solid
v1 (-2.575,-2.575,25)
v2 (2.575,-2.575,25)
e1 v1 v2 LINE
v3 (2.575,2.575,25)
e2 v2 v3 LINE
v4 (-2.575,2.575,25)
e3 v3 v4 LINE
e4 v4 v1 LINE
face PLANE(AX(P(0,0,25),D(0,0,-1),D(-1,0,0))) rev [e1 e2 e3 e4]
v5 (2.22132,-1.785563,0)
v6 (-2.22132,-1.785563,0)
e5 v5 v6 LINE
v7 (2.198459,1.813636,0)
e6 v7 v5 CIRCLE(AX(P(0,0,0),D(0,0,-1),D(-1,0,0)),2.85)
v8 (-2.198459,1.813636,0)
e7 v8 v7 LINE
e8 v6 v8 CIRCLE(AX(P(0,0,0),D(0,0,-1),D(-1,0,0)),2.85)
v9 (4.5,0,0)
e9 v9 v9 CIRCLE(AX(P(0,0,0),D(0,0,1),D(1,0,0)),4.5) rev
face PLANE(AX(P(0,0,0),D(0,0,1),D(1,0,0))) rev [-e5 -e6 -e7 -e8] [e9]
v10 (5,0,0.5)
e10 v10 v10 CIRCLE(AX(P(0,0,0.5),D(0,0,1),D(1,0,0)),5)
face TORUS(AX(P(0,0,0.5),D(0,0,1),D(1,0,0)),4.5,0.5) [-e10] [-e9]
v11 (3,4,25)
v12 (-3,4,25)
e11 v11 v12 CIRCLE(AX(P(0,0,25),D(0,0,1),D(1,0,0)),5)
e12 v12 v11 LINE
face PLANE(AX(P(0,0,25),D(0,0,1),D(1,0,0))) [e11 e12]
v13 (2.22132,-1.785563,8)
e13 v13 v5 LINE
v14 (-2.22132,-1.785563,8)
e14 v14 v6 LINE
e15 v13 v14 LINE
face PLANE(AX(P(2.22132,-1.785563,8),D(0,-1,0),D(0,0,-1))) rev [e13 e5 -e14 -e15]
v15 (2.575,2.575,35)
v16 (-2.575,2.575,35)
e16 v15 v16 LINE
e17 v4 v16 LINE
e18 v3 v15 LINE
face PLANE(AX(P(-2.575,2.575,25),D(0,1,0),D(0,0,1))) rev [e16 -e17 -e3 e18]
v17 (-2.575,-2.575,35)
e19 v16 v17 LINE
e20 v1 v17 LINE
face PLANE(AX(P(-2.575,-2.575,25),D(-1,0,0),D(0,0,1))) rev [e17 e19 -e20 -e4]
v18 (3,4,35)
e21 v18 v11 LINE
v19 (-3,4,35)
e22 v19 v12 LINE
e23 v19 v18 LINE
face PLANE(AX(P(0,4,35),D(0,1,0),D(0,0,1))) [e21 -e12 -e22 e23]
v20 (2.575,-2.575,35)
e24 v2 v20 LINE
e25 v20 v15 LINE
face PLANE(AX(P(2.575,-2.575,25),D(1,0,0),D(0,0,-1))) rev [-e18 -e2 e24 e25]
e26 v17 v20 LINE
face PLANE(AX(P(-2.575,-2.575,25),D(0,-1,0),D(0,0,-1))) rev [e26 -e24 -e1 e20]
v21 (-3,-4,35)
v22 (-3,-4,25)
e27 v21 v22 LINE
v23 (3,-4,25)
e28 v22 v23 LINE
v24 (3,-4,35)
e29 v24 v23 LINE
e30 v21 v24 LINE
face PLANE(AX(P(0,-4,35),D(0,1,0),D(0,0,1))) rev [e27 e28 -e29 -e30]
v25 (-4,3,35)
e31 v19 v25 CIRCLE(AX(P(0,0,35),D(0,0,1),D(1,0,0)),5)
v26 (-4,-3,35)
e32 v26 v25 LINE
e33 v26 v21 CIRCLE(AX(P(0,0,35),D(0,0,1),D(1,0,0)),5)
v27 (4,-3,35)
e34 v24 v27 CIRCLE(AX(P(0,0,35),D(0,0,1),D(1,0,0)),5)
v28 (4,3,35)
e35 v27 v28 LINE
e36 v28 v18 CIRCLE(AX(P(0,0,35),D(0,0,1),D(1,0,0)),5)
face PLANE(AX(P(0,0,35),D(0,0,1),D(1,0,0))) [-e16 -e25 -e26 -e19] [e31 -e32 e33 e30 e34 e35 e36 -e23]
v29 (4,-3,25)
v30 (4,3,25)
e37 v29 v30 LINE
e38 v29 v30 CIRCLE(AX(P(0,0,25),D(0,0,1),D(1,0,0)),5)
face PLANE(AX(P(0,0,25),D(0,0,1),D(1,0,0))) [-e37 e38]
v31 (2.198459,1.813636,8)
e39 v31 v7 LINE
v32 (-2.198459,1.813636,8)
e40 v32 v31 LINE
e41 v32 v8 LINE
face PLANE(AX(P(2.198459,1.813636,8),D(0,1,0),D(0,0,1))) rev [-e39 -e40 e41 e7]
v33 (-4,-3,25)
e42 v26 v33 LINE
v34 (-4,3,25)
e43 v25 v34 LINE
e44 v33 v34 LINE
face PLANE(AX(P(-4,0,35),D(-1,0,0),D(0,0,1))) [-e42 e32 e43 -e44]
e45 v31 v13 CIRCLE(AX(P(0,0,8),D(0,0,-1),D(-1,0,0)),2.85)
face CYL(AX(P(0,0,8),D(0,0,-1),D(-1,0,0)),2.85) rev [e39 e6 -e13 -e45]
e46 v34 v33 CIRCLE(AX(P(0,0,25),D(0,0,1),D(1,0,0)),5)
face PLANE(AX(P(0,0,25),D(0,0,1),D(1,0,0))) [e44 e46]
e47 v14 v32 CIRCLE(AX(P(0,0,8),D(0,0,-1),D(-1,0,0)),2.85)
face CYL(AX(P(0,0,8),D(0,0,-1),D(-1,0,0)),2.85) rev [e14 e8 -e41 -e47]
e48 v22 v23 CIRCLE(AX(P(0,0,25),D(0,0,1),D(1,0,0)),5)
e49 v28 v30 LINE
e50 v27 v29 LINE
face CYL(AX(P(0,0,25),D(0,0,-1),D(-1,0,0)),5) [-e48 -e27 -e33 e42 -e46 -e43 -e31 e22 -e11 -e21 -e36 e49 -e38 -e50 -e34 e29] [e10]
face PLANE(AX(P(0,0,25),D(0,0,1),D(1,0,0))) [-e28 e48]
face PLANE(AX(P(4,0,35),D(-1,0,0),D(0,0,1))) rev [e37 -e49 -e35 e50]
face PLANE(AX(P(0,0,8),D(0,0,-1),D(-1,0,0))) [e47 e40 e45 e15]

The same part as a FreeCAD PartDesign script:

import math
import FreeCAD as App
import Part
import Sketcher

V = App.Vector


def edges_at(feature, points):
    """Names of the edges that pass closest to the given points."""
    edges = feature.Shape.Edges
    near = lambda p: min(range(len(edges)), key=lambda i: edges[i].distToShape(Part.Vertex(*p))[0])
    return sorted({f"Edge{near(p) + 1}" for p in points})

doc = App.newDocument("Part")
body = doc.addObject("PartDesign::Body", "Body")

sketch1 = body.newObject("Sketcher::SketchObject", "Sketch")
sketch1.AttachmentSupport = (doc.getObject("XY_Plane"), [""])
sketch1.MapMode = "FlatFace"
sketch1.addGeometry(Part.Circle(V(0, 0, 0), V(0, 0, 1), 5), False)
sketch1.addConstraint([
    Sketcher.Constraint("Coincident", 0, 3, -1, 1),
    Sketcher.Constraint("Diameter", 0, 10.0),
])
pad1 = body.newObject("PartDesign::Pad", "Pad")
pad1.Profile = sketch1
pad1.Length = 25

sketch2 = body.newObject("Sketcher::SketchObject", "Sketch001")
sketch2.AttachmentSupport = (doc.getObject("XY_Plane"), [""])
sketch2.MapMode = "FlatFace"
sketch2.addGeometry([
    Part.LineSegment(V(2.2, -1.8, 0), V(-2.2, -1.8, 0)),
    Part.ArcOfCircle(Part.Circle(V(0, 0, 0), V(0, 0, 1), 2.9), math.radians(140), math.radians(219)),
    Part.LineSegment(V(-2.2, 1.8, 0), V(2.2, 1.8, 0)),
    Part.ArcOfCircle(Part.Circle(V(0, 0, 0), V(0, 0, 1), 2.9), math.radians(-39), math.radians(40)),
], False)
sketch2.addConstraint([
    Sketcher.Constraint("Coincident", 0, 2, 1, 2),
    Sketcher.Constraint("Coincident", 1, 1, 2, 1),
    Sketcher.Constraint("Coincident", 2, 2, 3, 2),
    Sketcher.Constraint("Coincident", 3, 1, 0, 1),
    Sketcher.Constraint("Horizontal", 0),
    Sketcher.Constraint("Horizontal", 2),
    Sketcher.Constraint("Coincident", 1, 3, -1, 1),
    Sketcher.Constraint("Coincident", 3, 3, -1, 1),
    Sketcher.Constraint("Equal", 1, 3),
    Sketcher.Constraint("Radius", 1, 2.85),
    Sketcher.Constraint("DistanceX", 0, 2, 0, 1, 4.442641),
    Sketcher.Constraint("DistanceX", 2, 1, 2, 2, 4.396919),
])
pocket1 = body.newObject("PartDesign::Pocket", "Pocket")
pocket1.Profile = sketch2
pocket1.Length = 8
pocket1.Reversed = True

sketch3 = body.newObject("Sketcher::SketchObject", "Sketch002")
sketch3.AttachmentSupport = (doc.getObject("XY_Plane"), [""])
sketch3.MapMode = "FlatFace"
sketch3.AttachmentOffset = App.Placement(V(0, 0, 25), App.Rotation())
sketch3.addGeometry([
    Part.ArcOfCircle(Part.Circle(V(0, 0, 0), V(0, 0, 1), 5), math.radians(-143.13), math.radians(-126.87)),
    Part.LineSegment(V(-3, -4, 0), V(3, -4, 0)),
    Part.ArcOfCircle(Part.Circle(V(0, 0, 0), V(0, 0, 1), 5), math.radians(-53.13), math.radians(-36.87)),
    Part.LineSegment(V(4, -3, 0), V(4, 3, 0)),
    Part.ArcOfCircle(Part.Circle(V(0, 0, 0), V(0, 0, 1), 5), math.radians(36.87), math.radians(53.13)),
    Part.LineSegment(V(3, 4, 0), V(-3, 4, 0)),
    Part.ArcOfCircle(Part.Circle(V(0, 0, 0), V(0, 0, 1), 5), math.radians(126.87), math.radians(143.13)),
    Part.LineSegment(V(-4, 3, 0), V(-4, -3, 0)),
], False)
sketch3.addConstraint([
    Sketcher.Constraint("Coincident", 0, 2, 1, 1),
    Sketcher.Constraint("Coincident", 1, 2, 2, 1),
    Sketcher.Constraint("Coincident", 2, 2, 3, 1),
    Sketcher.Constraint("Coincident", 3, 2, 4, 1),
    Sketcher.Constraint("Coincident", 4, 2, 5, 1),
    Sketcher.Constraint("Coincident", 5, 2, 6, 1),
    Sketcher.Constraint("Coincident", 6, 2, 7, 1),
    Sketcher.Constraint("Coincident", 7, 2, 0, 1),
    Sketcher.Constraint("Horizontal", 1),
    Sketcher.Constraint("Vertical", 3),
    Sketcher.Constraint("Horizontal", 5),
    Sketcher.Constraint("Vertical", 7),
    Sketcher.Constraint("Coincident", 0, 3, -1, 1),
    Sketcher.Constraint("Coincident", 2, 3, -1, 1),
    Sketcher.Constraint("Coincident", 4, 3, -1, 1),
    Sketcher.Constraint("Coincident", 6, 3, -1, 1),
    Sketcher.Constraint("Equal", 0, 2),
    Sketcher.Constraint("Equal", 2, 4),
    Sketcher.Constraint("Equal", 4, 6),
    Sketcher.Constraint("Horizontal", 3, 2, 6, 2),
    Sketcher.Constraint("Vertical", 1, 2, 4, 2),
    Sketcher.Constraint("Equal", 5, 3),
    Sketcher.Constraint("Radius", 0, 5.0),
    Sketcher.Constraint("DistanceX", 1, 1, 1, 2, 6.0),
])
pad2 = body.newObject("PartDesign::Pad", "Pad001")
pad2.Profile = sketch3
pad2.Length = 10

sketch4 = body.newObject("Sketcher::SketchObject", "Sketch003")
sketch4.AttachmentSupport = (doc.getObject("XY_Plane"), [""])
sketch4.MapMode = "FlatFace"
sketch4.AttachmentOffset = App.Placement(V(0, 0, 35), App.Rotation())
sketch4.addGeometry([
    Part.LineSegment(V(-3, 3, 0), V(-3, -3, 0)),
    Part.LineSegment(V(-3, -3, 0), V(3, -3, 0)),
    Part.LineSegment(V(3, -3, 0), V(3, 3, 0)),
    Part.LineSegment(V(3, 3, 0), V(-3, 3, 0)),
], False)
sketch4.addConstraint([
    Sketcher.Constraint("Coincident", 0, 2, 1, 1),
    Sketcher.Constraint("Coincident", 1, 2, 2, 1),
    Sketcher.Constraint("Coincident", 2, 2, 3, 1),
    Sketcher.Constraint("Coincident", 3, 2, 0, 1),
    Sketcher.Constraint("Vertical", 0),
    Sketcher.Constraint("Horizontal", 1),
    Sketcher.Constraint("Vertical", 2),
    Sketcher.Constraint("Horizontal", 3),
    Sketcher.Constraint("Symmetric", 0, 2, 2, 2, -1, 1),
    Sketcher.Constraint("Equal", 3, 0),
    Sketcher.Constraint("DistanceX", 1, 1, 1, 2, 5.15),
])
pocket2 = body.newObject("PartDesign::Pocket", "Pocket001")
pocket2.Profile = sketch4
pocket2.Length = 10
doc.recompute()

fillet = body.newObject("PartDesign::Fillet", "Fillet")
fillet.Base = (pocket2, edges_at(pocket2, [(-5, 0, 0)]))
fillet.Radius = 0.5

doc.recompute()
